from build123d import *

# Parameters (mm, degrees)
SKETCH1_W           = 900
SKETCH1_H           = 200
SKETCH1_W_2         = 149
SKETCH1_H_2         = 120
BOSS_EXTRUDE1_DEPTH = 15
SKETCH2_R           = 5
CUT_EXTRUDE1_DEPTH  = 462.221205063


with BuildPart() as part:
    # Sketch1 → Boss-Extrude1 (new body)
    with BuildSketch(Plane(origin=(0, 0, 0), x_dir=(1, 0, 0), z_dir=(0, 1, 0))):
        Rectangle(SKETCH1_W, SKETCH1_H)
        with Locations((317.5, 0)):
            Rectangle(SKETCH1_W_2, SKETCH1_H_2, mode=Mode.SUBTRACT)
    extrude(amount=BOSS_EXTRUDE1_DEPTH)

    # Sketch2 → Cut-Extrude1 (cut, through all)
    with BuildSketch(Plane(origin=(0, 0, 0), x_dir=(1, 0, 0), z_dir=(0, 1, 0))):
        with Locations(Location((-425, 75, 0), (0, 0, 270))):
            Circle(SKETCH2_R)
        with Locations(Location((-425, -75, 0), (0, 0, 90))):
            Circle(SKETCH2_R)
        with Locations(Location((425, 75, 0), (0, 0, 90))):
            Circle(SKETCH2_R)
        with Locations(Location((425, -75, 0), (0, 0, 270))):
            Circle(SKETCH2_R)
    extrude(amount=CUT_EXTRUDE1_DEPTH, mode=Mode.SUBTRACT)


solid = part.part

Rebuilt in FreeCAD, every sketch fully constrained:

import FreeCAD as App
import Part
import Sketcher

V = App.Vector
Q = App.Units.Quantity

doc = App.newDocument("Part")
body = doc.addObject("PartDesign::Body", "Body")

sketch1 = body.newObject("Sketcher::SketchObject", "Sketch")
sketch1.AttachmentSupport = (doc.getObject("XZ_Plane"), [""])
sketch1.MapMode = "FlatFace"
sketch1.addGeometry([
    Part.LineSegment(V(-450, -100, 0), V(-450, 100, 0)),
    Part.LineSegment(V(-450, 100, 0), V(450, 100, 0)),
    Part.LineSegment(V(450, 100, 0), V(450, -100, 0)),
    Part.LineSegment(V(450, -100, 0), V(-450, -100, 0)),
    Part.LineSegment(V(392, 60, 0), V(243, 60, 0)),
    Part.LineSegment(V(243, 60, 0), V(243, -60, 0)),
    Part.LineSegment(V(243, -60, 0), V(392, -60, 0)),
    Part.LineSegment(V(392, -60, 0), V(392, 60, 0)),
], False)
sketch1.addConstraint([
    Sketcher.Constraint("Coincident", 0, 2, 1, 1),
    Sketcher.Constraint("Coincident", 1, 2, 2, 1),
    Sketcher.Constraint("Coincident", 2, 2, 3, 1),
    Sketcher.Constraint("Coincident", 3, 2, 0, 1),
    Sketcher.Constraint("Coincident", 4, 2, 5, 1),
    Sketcher.Constraint("Coincident", 5, 2, 6, 1),
    Sketcher.Constraint("Coincident", 6, 2, 7, 1),
    Sketcher.Constraint("Coincident", 7, 2, 4, 1),
    Sketcher.Constraint("Vertical", 0),
    Sketcher.Constraint("Horizontal", 1),
    Sketcher.Constraint("Vertical", 2),
    Sketcher.Constraint("Horizontal", 3),
    Sketcher.Constraint("Horizontal", 4),
    Sketcher.Constraint("Vertical", 5),
    Sketcher.Constraint("Horizontal", 6),
    Sketcher.Constraint("Vertical", 7),
    Sketcher.Constraint("Symmetric", 0, 2, 2, 2, -1, 1),
    Sketcher.Constraint("DistanceX", 1, 1, 1, 2, Q("900 mm")),
    Sketcher.Constraint("DistanceX", 4, 2, 4, 1, Q("149 mm")),
    Sketcher.Constraint("DistanceY", 0, 1, 0, 2, Q("200 mm")),
    Sketcher.Constraint("DistanceY", 5, 2, 5, 1, Q("120 mm")),
    Sketcher.Constraint("DistanceX", -1, 1, 4, 2, Q("243 mm")),
    Sketcher.Constraint("DistanceY", -1, 1, 4, 2, Q("60 mm")),
])
pad1 = body.newObject("PartDesign::Pad", "Pad")
pad1.Profile = sketch1
pad1.Length = 15
pad1.Reversed = True

sketch2 = body.newObject("Sketcher::SketchObject", "Sketch001")
sketch2.AttachmentSupport = (doc.getObject("XZ_Plane"), [""])
sketch2.MapMode = "FlatFace"
sketch2.addGeometry([
    Part.Circle(V(-425, -75, 0), V(0, 0, 1), 5),
    Part.Circle(V(-425, 75, 0), V(0, 0, 1), 5),
    Part.Circle(V(425, -75, 0), V(0, 0, 1), 5),
    Part.Circle(V(425, 75, 0), V(0, 0, 1), 5),
], False)
sketch2.addConstraint([
    Sketcher.Constraint("Equal", 0, 1),
    Sketcher.Constraint("Equal", 1, 2),
    Sketcher.Constraint("Equal", 2, 3),
    Sketcher.Constraint("Symmetric", 1, 3, 2, 3, -1, 1),
    Sketcher.Constraint("Symmetric", 0, 3, 3, 3, -1, 1),
    Sketcher.Constraint("Symmetric", 0, 3, 2, 3, -2),
    Sketcher.Constraint("Diameter", 0, Q("10 mm")),
    Sketcher.Constraint("DistanceX", 0, 3, -1, 1, Q("425 mm")),
    Sketcher.Constraint("DistanceY", 0, 3, -1, 1, Q("75 mm")),
])
pocket1 = body.newObject("PartDesign::Pocket", "Pocket")
pocket1.Profile = sketch2
pocket1.Type = "ThroughAll"

doc.recompute()
